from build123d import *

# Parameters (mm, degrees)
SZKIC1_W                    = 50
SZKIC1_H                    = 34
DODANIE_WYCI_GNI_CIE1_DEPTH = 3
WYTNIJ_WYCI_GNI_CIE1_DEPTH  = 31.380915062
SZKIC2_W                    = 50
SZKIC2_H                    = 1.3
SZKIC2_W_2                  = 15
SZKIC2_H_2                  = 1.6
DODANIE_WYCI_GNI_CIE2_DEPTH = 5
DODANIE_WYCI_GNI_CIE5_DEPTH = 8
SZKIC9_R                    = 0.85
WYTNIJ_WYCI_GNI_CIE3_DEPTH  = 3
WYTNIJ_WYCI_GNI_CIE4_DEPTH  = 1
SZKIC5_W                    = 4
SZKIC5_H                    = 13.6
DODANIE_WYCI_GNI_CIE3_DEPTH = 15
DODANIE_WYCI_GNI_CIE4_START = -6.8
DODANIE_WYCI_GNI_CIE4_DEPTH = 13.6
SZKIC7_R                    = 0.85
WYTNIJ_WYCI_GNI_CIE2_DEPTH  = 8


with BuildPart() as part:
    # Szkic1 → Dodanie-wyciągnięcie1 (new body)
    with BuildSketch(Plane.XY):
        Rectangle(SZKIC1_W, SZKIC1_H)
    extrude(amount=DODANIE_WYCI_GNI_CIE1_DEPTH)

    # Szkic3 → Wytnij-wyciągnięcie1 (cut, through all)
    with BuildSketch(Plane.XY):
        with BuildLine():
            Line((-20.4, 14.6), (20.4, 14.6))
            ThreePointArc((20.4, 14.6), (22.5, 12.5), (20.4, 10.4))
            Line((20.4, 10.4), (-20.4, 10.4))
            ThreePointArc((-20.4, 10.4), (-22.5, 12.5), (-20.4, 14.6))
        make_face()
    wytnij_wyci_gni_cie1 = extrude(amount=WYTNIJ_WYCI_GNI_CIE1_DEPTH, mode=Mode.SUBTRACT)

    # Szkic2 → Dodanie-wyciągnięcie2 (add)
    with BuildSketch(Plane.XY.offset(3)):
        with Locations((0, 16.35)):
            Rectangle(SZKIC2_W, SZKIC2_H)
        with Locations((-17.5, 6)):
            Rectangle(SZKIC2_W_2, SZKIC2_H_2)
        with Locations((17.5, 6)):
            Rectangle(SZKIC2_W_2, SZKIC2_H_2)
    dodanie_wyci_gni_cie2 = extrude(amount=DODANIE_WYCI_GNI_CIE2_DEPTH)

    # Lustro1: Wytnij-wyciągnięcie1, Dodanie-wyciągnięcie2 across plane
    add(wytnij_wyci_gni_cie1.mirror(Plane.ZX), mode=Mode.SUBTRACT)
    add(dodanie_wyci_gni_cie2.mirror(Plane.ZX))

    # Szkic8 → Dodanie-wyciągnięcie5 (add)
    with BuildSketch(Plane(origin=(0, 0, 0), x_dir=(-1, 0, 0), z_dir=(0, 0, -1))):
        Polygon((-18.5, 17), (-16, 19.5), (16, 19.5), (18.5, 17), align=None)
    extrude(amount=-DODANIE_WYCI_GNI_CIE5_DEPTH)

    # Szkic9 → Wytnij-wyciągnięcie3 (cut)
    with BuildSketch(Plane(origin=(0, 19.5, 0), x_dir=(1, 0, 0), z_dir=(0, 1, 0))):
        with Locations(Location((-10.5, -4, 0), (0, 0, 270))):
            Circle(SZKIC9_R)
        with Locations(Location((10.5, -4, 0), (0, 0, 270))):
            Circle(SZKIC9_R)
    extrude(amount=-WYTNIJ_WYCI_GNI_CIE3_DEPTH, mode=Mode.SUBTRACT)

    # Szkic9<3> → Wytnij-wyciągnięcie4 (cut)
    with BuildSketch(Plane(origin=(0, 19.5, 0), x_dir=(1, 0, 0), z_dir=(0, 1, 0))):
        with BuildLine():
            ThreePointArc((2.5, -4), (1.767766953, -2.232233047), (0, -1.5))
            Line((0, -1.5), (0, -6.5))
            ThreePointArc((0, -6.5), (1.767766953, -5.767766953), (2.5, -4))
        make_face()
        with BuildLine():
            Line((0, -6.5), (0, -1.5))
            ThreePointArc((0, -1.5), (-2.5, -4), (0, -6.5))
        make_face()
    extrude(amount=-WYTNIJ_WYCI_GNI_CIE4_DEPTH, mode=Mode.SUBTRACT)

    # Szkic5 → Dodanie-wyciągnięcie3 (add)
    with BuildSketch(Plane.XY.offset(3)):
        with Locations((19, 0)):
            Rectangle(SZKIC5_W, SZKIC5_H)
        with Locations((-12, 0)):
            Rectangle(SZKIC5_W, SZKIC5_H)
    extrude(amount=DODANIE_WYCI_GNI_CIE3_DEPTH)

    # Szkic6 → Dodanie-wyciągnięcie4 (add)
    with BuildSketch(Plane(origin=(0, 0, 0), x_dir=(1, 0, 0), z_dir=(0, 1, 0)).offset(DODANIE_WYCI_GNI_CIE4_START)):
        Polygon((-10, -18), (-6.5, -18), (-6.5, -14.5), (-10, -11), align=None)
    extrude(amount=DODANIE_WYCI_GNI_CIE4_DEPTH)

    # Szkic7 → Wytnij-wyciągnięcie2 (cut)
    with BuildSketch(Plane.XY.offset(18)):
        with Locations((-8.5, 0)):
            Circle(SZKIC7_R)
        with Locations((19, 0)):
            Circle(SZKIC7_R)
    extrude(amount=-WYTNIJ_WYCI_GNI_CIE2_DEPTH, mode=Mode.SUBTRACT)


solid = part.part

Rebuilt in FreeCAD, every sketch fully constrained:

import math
import FreeCAD as App
import Part
import Sketcher
from FreeCAD import Vector
Q = App.Units.Quantity


def add_polygon(sketch, points):
    """Adds a closed chain of lines whose ends are joined by coincident constraints."""
    first, n = sketch.GeometryCount, len(points)
    for a, b in zip(points, points[1:] + points[:1]):
        sketch.addGeometry(Part.LineSegment(App.Vector(*a, 0), App.Vector(*b, 0)), False)
    for i in range(n):
        sketch.addConstraint(Sketcher.Constraint("Coincident", first + i, 2, first + (i + 1) % n, 1))

doc = App.newDocument("Part")
body = doc.addObject("PartDesign::Body", "Body")

# Sketch on XY plane
sketch1 = body.newObject("Sketcher::SketchObject", "Sketch")
sketch1.AttachmentSupport = (doc.getObject("XY_Plane"), [""])
sketch1.MapMode = "FlatFace"
add_polygon(sketch1, [(-25, 17), (-25, -17), (25, -17), (25, 17)])  # lines 0-3
sketch1.addConstraint([
    Sketcher.Constraint("Vertical", 0),
    Sketcher.Constraint("Horizontal", 1),
    Sketcher.Constraint("Vertical", 2),
    Sketcher.Constraint("Horizontal", 3),
    Sketcher.Constraint("Symmetric", 0, 2, 2, 2, -1, 1),
    Sketcher.Constraint("DistanceX", 1, 1, 1, 2, Q("50 mm")),
    Sketcher.Constraint("DistanceY", 0, 2, 0, 1, Q("34 mm")),
])
pad1 = body.newObject("PartDesign::Pad", "Pad")
pad1.Profile = sketch1
pad1.Length = 3

# Sketch on XY plane
sketch2 = body.newObject("Sketcher::SketchObject", "Sketch001")
sketch2.AttachmentSupport = (doc.getObject("XY_Plane"), [""])
sketch2.MapMode = "FlatFace"
sketch2.addGeometry([
    Part.LineSegment(Vector(20.4, 14.6, 0), Vector(-20.4, 14.6, 0)),
    Part.ArcOfCircle(Part.Circle(Vector(-20.4, 12.5, 0), Vector(0, 0, 1), 2.1), math.radians(90), math.radians(270)),
    Part.LineSegment(Vector(-20.4, 10.4, 0), Vector(20.4, 10.4, 0)),
    Part.ArcOfCircle(Part.Circle(Vector(20.4, 12.5, 0), Vector(0, 0, 1), 2.1), math.radians(-90), math.radians(90)),
], False)
sketch2.addConstraint([
    Sketcher.Constraint("Tangent", 0, 2, 1, 1),
    Sketcher.Constraint("Tangent", 1, 2, 2, 1),
    Sketcher.Constraint("Tangent", 2, 2, 3, 1),
    Sketcher.Constraint("Tangent", 3, 2, 0, 1),
    Sketcher.Constraint("Horizontal", 0),
    Sketcher.Constraint("Horizontal", 2),
    Sketcher.Constraint("Radius", 1, Q("2.1 mm")),
    Sketcher.Constraint("DistanceX", 0, 2, 0, 1, Q("40.8 mm")),
    Sketcher.Constraint("DistanceX", 1, 3, -1, 1, Q("20.4 mm")),
    Sketcher.Constraint("DistanceY", -1, 1, 1, 3, Q("12.5 mm")),
])
pocket1 = body.newObject("PartDesign::Pocket", "Pocket")
pocket1.Profile = sketch2
pocket1.Type = "ThroughAll"
pocket1.Reversed = True

# Sketch on XY plane
sketch3 = body.newObject("Sketcher::SketchObject", "Sketch002")
sketch3.AttachmentSupport = (doc.getObject("XY_Plane"), [""])
sketch3.MapMode = "FlatFace"
sketch3.AttachmentOffset = App.Placement(Vector(0, 0, 3), App.Rotation())
add_polygon(sketch3, [(-25, 17), (-25, 15.7), (25, 15.7), (25, 17)])  # lines 0-3
add_polygon(sketch3, [(-25, 6.8), (-25, 5.2), (-10, 5.2), (-10, 6.8)])  # lines 4-7
add_polygon(sketch3, [(10, 6.8), (10, 5.2), (25, 5.2), (25, 6.8)])  # lines 8-11
sketch3.addConstraint([
    Sketcher.Constraint("Vertical", 0),
    Sketcher.Constraint("Horizontal", 1),
    Sketcher.Constraint("Vertical", 2),
    Sketcher.Constraint("Horizontal", 3),
    Sketcher.Constraint("Vertical", 4),
    Sketcher.Constraint("Horizontal", 5),
    Sketcher.Constraint("Vertical", 6),
    Sketcher.Constraint("Horizontal", 7),
    Sketcher.Constraint("Vertical", 8),
    Sketcher.Constraint("Horizontal", 9),
    Sketcher.Constraint("Vertical", 10),
    Sketcher.Constraint("Horizontal", 11),
    Sketcher.Constraint("Symmetric", 5, 2, 8, 2, -2),
    Sketcher.Constraint("Symmetric", 7, 2, 10, 2, -2),
    Sketcher.Constraint("Vertical", 3, 2, 4, 2),
    Sketcher.Constraint("Vertical", 2, 2, 9, 2),
    Sketcher.Constraint("DistanceX", 1, 1, 1, 2, Q("50 mm")),
    Sketcher.Constraint("DistanceX", 5, 1, 5, 2, Q("15 mm")),
    Sketcher.Constraint("DistanceY", 0, 2, 0, 1, Q("1.3 mm")),
    Sketcher.Constraint("DistanceY", 4, 2, 4, 1, Q("1.6 mm")),
    Sketcher.Constraint("DistanceY", -1, 1, 2, 2, Q("17 mm")),
    Sketcher.Constraint("DistanceY", -1, 1, 4, 2, Q("5.2 mm")),
])
pad2 = body.newObject("PartDesign::Pad", "Pad001")
pad2.Profile = sketch3
pad2.Length = 5
doc.recompute()

mirrored = body.newObject("PartDesign::Mirrored", "Mirrored")
mirrored.Originals = [pocket1, pad2]
mirrored.MirrorPlane = (doc.getObject("XZ_Plane"), [""])
body.Tip = mirrored

# Sketch on XY plane
sketch4 = body.newObject("Sketcher::SketchObject", "Sketch003")
sketch4.AttachmentSupport = (doc.getObject("XY_Plane"), [""])
sketch4.MapMode = "FlatFace"
add_polygon(sketch4, [(16, 19.5), (18.5, 17), (-18.5, 17), (-16, 19.5)])  # lines 0-3
sketch4.addConstraint([
    Sketcher.Constraint("Horizontal", 1),
    Sketcher.Constraint("Horizontal", 3),
    Sketcher.Constraint("Perpendicular", 0, 2),
    Sketcher.Constraint("Equal", 0, 2),
    Sketcher.Constraint("DistanceX", 1, 2, 1, 1, Q("37 mm")),
    Sketcher.Constraint("DistanceX", 3, 1, 3, 2, Q("32 mm")),
    Sketcher.Constraint("DistanceY", -1, 1, 0, 2, Q("17 mm")),
    Sketcher.Constraint("DistanceX", 2, 2, -1, 1, Q("16 mm")),
])
pad3 = body.newObject("PartDesign::Pad", "Pad002")
pad3.Profile = sketch4
pad3.Length = 8

# Sketch on XZ plane
sketch5 = body.newObject("Sketcher::SketchObject", "Sketch004")
sketch5.AttachmentSupport = (doc.getObject("XZ_Plane"), [""])
sketch5.MapMode = "FlatFace"
sketch5.AttachmentOffset = App.Placement(Vector(0, 0, -19.5), App.Rotation())
sketch5.addGeometry([
    Part.Circle(Vector(-10.5, 4, 0), Vector(0, 0, 1), 0.8),
    Part.Circle(Vector(10.5, 4, 0), Vector(0, 0, 1), 0.8),
], False)
sketch5.addConstraint([
    Sketcher.Constraint("Equal", 0, 1),
    Sketcher.Constraint("Symmetric", 0, 3, 1, 3, -2),
    Sketcher.Constraint("Diameter", 0, Q("1.7 mm")),
    Sketcher.Constraint("DistanceY", -1, 1, 0, 3, Q("4 mm")),
    Sketcher.Constraint("DistanceX", 0, 3, 1, 3, Q("21 mm")),
])
pocket2 = body.newObject("PartDesign::Pocket", "Pocket001")
pocket2.Profile = sketch5
pocket2.Length = 3
pocket2.Reversed = True

# Sketch on XZ plane
sketch6 = body.newObject("Sketcher::SketchObject", "Sketch005")
sketch6.AttachmentSupport = (doc.getObject("XZ_Plane"), [""])
sketch6.MapMode = "FlatFace"
sketch6.AttachmentOffset = App.Placement(Vector(0, 0, -19.5), App.Rotation())
sketch6.addGeometry([
    Part.ArcOfCircle(Part.Circle(Vector(0, 4, 0), Vector(0, 0, 1), 2.5), math.radians(-90), math.radians(0)),
    Part.ArcOfCircle(Part.Circle(Vector(0, 4, 0), Vector(0, 0, 1), 2.5), math.radians(90), math.radians(270)),
    Part.ArcOfCircle(Part.Circle(Vector(0, 4, 0), Vector(0, 0, 1), 2.5), math.radians(0), math.radians(90)),
], False)
sketch6.addConstraint([
    Sketcher.Constraint("Tangent", 0, 1, 1, 2),
    Sketcher.Constraint("Tangent", 1, 1, 2, 2),
    Sketcher.Constraint("Tangent", 2, 1, 0, 2),
    Sketcher.Constraint("PointOnObject", 0, 3, -2),
    Sketcher.Constraint("PointOnObject", 0, 1, -2),
    Sketcher.Constraint("PointOnObject", 1, 1, -2),
    Sketcher.Constraint("Horizontal", 1, 3, 2, 1),
    Sketcher.Constraint("Radius", 0, Q("2.5 mm")),
    Sketcher.Constraint("DistanceY", -1, 1, 0, 3, Q("4 mm")),
])
pocket3 = body.newObject("PartDesign::Pocket", "Pocket002")
pocket3.Profile = sketch6
pocket3.Length = 1
pocket3.Reversed = True

# Sketch on XY plane
sketch7 = body.newObject("Sketcher::SketchObject", "Sketch006")
sketch7.AttachmentSupport = (doc.getObject("XY_Plane"), [""])
sketch7.MapMode = "FlatFace"
sketch7.AttachmentOffset = App.Placement(Vector(0, 0, 3), App.Rotation())
add_polygon(sketch7, [(17, 6.8), (17, -6.8), (21, -6.8), (21, 6.8)])  # lines 0-3
add_polygon(sketch7, [(-14, 6.8), (-14, -6.8), (-10, -6.8), (-10, 6.8)])  # lines 4-7
sketch7.addConstraint([
    Sketcher.Constraint("Vertical", 0),
    Sketcher.Constraint("Horizontal", 1),
    Sketcher.Constraint("Vertical", 2),
    Sketcher.Constraint("Horizontal", 3),
    Sketcher.Constraint("Vertical", 4),
    Sketcher.Constraint("Horizontal", 5),
    Sketcher.Constraint("Vertical", 6),
    Sketcher.Constraint("Horizontal", 7),
    Sketcher.Constraint("Horizontal", 1, 2, 4, 2),
    Sketcher.Constraint("Horizontal", 3, 2, 6, 2),
    Sketcher.Constraint("Equal", 3, 5),
    Sketcher.Constraint("DistanceX", 1, 1, 1, 2, Q("4 mm")),
    Sketcher.Constraint("DistanceY", 0, 2, 0, 1, Q("13.6 mm")),
    Sketcher.Constraint("DistanceX", -1, 1, 0, 2, Q("17 mm")),
    Sketcher.Constraint("DistanceX", 4, 2, -1, 1, Q("14 mm")),
    Sketcher.Constraint("DistanceY", 0, 2, -1, 1, Q("6.8 mm")),
])
pad4 = body.newObject("PartDesign::Pad", "Pad003")
pad4.Profile = sketch7
pad4.Length = 15

# Sketch on XZ plane
sketch8 = body.newObject("Sketcher::SketchObject", "Sketch007")
sketch8.AttachmentSupport = (doc.getObject("XZ_Plane"), [""])
sketch8.MapMode = "FlatFace"
sketch8.AttachmentOffset = App.Placement(Vector(0, 0, 6.8), App.Rotation())
add_polygon(sketch8, [(-10, 18), (-6.5, 18), (-6.5, 14.5), (-10, 11)])  # lines 0-3
sketch8.addConstraint([
    Sketcher.Constraint("Horizontal", 0),
    Sketcher.Constraint("Vertical", 1),
    Sketcher.Constraint("Vertical", 3),
    Sketcher.Constraint("Equal", 0, 1),
    Sketcher.Constraint("DistanceY", 3, 1, 3, 2, Q("7 mm")),
    Sketcher.Constraint("Angle", 2, Q("-135 deg")),
    Sketcher.Constraint("DistanceY", -1, 1, 0, 2, Q("18 mm")),
    Sketcher.Constraint("DistanceX", 2, 2, -1, 1, Q("10 mm")),
])
pad5 = body.newObject("PartDesign::Pad", "Pad004")
pad5.Profile = sketch8
pad5.Length = 13.6
pad5.Reversed = True

# Sketch on XY plane
sketch9 = body.newObject("Sketcher::SketchObject", "Sketch008")
sketch9.AttachmentSupport = (doc.getObject("XY_Plane"), [""])
sketch9.MapMode = "FlatFace"
sketch9.AttachmentOffset = App.Placement(Vector(0, 0, 18), App.Rotation())
sketch9.addGeometry([
    Part.Circle(Vector(-8.5, 0, 0), Vector(0, 0, 1), 0.8),
    Part.Circle(Vector(19, 0, 0), Vector(0, 0, 1), 0.8),
], False)
sketch9.addConstraint([
    Sketcher.Constraint("Equal", 0, 1),
    Sketcher.Constraint("PointOnObject", 0, 3, -1),
    Sketcher.Constraint("PointOnObject", 1, 3, -1),
    Sketcher.Constraint("Diameter", 0, Q("1.7 mm")),
    Sketcher.Constraint("DistanceX", -1, 1, 1, 3, Q("19 mm")),
    Sketcher.Constraint("DistanceX", 0, 3, -1, 1, Q("8.5 mm")),
])
pocket4 = body.newObject("PartDesign::Pocket", "Pocket003")
pocket4.Profile = sketch9
pocket4.Length = 8

doc.recompute()
